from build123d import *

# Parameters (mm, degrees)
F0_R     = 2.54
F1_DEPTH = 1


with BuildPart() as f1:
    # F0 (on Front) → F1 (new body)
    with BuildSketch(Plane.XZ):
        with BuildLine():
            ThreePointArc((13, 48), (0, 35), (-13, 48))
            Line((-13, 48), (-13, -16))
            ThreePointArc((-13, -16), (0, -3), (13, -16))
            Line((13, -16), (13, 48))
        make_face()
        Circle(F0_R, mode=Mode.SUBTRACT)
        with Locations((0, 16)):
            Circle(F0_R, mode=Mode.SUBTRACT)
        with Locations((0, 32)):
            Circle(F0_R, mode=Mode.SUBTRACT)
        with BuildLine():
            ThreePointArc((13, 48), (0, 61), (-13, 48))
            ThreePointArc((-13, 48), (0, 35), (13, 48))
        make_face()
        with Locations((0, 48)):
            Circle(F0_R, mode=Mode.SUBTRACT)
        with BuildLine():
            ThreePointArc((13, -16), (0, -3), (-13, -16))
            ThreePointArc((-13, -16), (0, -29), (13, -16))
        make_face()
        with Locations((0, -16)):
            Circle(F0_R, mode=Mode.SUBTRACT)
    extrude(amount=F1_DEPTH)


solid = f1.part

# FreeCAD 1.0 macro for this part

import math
import FreeCAD as App
import Part
import Sketcher

V = App.Vector
Q = App.Units.Quantity

doc = App.newDocument("Part")
body = doc.addObject("PartDesign::Body", "Body")

# Sketch on XZ plane
sketch1 = body.newObject("Sketcher::SketchObject", "Sketch")
sketch1.AttachmentSupport = (doc.getObject("XZ_Plane"), [""])
sketch1.MapMode = "FlatFace"
sketch1.addGeometry([
    Part.LineSegment(V(13, -16, 0), V(13, 48, 0)),  # 0
    Part.ArcOfCircle(Part.Circle(V(0, 48, 0), V(0, 0, 1), 13), math.radians(0), math.radians(180)),  # 1
    Part.LineSegment(V(-13, 48, 0), V(-13, -16, 0)),  # 2
    Part.ArcOfCircle(Part.Circle(V(0, -16, 0), V(0, 0, 1), 13), math.radians(180), math.radians(360)),  # 3
    Part.Circle(V(0, -16, 0), V(0, 0, 1), 2.5),  # 4
    Part.Circle(V(0, 0, 0), V(0, 0, 1), 2.5),  # 5
    Part.Circle(V(0, 16, 0), V(0, 0, 1), 2.5),  # 6
    Part.Circle(V(0, 32, 0), V(0, 0, 1), 2.5),  # 7
    Part.Circle(V(0, 48, 0), V(0, 0, 1), 2.5),  # 8
], False)
sketch1.addConstraint([
    Sketcher.Constraint("Tangent", 0, 2, 1, 1),
    Sketcher.Constraint("Tangent", 1, 2, 2, 1),
    Sketcher.Constraint("Tangent", 2, 2, 3, 1),
    Sketcher.Constraint("Tangent", 3, 2, 0, 1),
    Sketcher.Constraint("Vertical", 0),
    Sketcher.Constraint("Vertical", 2),
    Sketcher.Constraint("Coincident", 5, 3, -1, 1),
    Sketcher.Constraint("Coincident", 4, 3, 3, 3),
    Sketcher.Constraint("Coincident", 8, 3, 1, 3),
    Sketcher.Constraint("Equal", 4, 5),
    Sketcher.Constraint("Equal", 5, 6),
    Sketcher.Constraint("Equal", 6, 7),
    Sketcher.Constraint("Equal", 7, 8),
    Sketcher.Constraint("Symmetric", 3, 3, 6, 3, -1, 1),
    Sketcher.Constraint("PointOnObject", 1, 3, -2),
    Sketcher.Constraint("PointOnObject", 7, 3, -2),
    Sketcher.Constraint("Radius", 1, Q("13 mm")),
    Sketcher.Constraint("Diameter", 4, Q("5.08 mm")),
    Sketcher.Constraint("DistanceY", 0, 1, 0, 2, Q("64 mm")),
    Sketcher.Constraint("DistanceY", -1, 1, 1, 3, Q("48 mm")),
    Sketcher.Constraint("DistanceY", -1, 1, 7, 3, Q("32 mm")),
])
pad1 = body.newObject("PartDesign::Pad", "Pad")
pad1.Profile = sketch1
pad1.Length = 1

doc.recompute()
